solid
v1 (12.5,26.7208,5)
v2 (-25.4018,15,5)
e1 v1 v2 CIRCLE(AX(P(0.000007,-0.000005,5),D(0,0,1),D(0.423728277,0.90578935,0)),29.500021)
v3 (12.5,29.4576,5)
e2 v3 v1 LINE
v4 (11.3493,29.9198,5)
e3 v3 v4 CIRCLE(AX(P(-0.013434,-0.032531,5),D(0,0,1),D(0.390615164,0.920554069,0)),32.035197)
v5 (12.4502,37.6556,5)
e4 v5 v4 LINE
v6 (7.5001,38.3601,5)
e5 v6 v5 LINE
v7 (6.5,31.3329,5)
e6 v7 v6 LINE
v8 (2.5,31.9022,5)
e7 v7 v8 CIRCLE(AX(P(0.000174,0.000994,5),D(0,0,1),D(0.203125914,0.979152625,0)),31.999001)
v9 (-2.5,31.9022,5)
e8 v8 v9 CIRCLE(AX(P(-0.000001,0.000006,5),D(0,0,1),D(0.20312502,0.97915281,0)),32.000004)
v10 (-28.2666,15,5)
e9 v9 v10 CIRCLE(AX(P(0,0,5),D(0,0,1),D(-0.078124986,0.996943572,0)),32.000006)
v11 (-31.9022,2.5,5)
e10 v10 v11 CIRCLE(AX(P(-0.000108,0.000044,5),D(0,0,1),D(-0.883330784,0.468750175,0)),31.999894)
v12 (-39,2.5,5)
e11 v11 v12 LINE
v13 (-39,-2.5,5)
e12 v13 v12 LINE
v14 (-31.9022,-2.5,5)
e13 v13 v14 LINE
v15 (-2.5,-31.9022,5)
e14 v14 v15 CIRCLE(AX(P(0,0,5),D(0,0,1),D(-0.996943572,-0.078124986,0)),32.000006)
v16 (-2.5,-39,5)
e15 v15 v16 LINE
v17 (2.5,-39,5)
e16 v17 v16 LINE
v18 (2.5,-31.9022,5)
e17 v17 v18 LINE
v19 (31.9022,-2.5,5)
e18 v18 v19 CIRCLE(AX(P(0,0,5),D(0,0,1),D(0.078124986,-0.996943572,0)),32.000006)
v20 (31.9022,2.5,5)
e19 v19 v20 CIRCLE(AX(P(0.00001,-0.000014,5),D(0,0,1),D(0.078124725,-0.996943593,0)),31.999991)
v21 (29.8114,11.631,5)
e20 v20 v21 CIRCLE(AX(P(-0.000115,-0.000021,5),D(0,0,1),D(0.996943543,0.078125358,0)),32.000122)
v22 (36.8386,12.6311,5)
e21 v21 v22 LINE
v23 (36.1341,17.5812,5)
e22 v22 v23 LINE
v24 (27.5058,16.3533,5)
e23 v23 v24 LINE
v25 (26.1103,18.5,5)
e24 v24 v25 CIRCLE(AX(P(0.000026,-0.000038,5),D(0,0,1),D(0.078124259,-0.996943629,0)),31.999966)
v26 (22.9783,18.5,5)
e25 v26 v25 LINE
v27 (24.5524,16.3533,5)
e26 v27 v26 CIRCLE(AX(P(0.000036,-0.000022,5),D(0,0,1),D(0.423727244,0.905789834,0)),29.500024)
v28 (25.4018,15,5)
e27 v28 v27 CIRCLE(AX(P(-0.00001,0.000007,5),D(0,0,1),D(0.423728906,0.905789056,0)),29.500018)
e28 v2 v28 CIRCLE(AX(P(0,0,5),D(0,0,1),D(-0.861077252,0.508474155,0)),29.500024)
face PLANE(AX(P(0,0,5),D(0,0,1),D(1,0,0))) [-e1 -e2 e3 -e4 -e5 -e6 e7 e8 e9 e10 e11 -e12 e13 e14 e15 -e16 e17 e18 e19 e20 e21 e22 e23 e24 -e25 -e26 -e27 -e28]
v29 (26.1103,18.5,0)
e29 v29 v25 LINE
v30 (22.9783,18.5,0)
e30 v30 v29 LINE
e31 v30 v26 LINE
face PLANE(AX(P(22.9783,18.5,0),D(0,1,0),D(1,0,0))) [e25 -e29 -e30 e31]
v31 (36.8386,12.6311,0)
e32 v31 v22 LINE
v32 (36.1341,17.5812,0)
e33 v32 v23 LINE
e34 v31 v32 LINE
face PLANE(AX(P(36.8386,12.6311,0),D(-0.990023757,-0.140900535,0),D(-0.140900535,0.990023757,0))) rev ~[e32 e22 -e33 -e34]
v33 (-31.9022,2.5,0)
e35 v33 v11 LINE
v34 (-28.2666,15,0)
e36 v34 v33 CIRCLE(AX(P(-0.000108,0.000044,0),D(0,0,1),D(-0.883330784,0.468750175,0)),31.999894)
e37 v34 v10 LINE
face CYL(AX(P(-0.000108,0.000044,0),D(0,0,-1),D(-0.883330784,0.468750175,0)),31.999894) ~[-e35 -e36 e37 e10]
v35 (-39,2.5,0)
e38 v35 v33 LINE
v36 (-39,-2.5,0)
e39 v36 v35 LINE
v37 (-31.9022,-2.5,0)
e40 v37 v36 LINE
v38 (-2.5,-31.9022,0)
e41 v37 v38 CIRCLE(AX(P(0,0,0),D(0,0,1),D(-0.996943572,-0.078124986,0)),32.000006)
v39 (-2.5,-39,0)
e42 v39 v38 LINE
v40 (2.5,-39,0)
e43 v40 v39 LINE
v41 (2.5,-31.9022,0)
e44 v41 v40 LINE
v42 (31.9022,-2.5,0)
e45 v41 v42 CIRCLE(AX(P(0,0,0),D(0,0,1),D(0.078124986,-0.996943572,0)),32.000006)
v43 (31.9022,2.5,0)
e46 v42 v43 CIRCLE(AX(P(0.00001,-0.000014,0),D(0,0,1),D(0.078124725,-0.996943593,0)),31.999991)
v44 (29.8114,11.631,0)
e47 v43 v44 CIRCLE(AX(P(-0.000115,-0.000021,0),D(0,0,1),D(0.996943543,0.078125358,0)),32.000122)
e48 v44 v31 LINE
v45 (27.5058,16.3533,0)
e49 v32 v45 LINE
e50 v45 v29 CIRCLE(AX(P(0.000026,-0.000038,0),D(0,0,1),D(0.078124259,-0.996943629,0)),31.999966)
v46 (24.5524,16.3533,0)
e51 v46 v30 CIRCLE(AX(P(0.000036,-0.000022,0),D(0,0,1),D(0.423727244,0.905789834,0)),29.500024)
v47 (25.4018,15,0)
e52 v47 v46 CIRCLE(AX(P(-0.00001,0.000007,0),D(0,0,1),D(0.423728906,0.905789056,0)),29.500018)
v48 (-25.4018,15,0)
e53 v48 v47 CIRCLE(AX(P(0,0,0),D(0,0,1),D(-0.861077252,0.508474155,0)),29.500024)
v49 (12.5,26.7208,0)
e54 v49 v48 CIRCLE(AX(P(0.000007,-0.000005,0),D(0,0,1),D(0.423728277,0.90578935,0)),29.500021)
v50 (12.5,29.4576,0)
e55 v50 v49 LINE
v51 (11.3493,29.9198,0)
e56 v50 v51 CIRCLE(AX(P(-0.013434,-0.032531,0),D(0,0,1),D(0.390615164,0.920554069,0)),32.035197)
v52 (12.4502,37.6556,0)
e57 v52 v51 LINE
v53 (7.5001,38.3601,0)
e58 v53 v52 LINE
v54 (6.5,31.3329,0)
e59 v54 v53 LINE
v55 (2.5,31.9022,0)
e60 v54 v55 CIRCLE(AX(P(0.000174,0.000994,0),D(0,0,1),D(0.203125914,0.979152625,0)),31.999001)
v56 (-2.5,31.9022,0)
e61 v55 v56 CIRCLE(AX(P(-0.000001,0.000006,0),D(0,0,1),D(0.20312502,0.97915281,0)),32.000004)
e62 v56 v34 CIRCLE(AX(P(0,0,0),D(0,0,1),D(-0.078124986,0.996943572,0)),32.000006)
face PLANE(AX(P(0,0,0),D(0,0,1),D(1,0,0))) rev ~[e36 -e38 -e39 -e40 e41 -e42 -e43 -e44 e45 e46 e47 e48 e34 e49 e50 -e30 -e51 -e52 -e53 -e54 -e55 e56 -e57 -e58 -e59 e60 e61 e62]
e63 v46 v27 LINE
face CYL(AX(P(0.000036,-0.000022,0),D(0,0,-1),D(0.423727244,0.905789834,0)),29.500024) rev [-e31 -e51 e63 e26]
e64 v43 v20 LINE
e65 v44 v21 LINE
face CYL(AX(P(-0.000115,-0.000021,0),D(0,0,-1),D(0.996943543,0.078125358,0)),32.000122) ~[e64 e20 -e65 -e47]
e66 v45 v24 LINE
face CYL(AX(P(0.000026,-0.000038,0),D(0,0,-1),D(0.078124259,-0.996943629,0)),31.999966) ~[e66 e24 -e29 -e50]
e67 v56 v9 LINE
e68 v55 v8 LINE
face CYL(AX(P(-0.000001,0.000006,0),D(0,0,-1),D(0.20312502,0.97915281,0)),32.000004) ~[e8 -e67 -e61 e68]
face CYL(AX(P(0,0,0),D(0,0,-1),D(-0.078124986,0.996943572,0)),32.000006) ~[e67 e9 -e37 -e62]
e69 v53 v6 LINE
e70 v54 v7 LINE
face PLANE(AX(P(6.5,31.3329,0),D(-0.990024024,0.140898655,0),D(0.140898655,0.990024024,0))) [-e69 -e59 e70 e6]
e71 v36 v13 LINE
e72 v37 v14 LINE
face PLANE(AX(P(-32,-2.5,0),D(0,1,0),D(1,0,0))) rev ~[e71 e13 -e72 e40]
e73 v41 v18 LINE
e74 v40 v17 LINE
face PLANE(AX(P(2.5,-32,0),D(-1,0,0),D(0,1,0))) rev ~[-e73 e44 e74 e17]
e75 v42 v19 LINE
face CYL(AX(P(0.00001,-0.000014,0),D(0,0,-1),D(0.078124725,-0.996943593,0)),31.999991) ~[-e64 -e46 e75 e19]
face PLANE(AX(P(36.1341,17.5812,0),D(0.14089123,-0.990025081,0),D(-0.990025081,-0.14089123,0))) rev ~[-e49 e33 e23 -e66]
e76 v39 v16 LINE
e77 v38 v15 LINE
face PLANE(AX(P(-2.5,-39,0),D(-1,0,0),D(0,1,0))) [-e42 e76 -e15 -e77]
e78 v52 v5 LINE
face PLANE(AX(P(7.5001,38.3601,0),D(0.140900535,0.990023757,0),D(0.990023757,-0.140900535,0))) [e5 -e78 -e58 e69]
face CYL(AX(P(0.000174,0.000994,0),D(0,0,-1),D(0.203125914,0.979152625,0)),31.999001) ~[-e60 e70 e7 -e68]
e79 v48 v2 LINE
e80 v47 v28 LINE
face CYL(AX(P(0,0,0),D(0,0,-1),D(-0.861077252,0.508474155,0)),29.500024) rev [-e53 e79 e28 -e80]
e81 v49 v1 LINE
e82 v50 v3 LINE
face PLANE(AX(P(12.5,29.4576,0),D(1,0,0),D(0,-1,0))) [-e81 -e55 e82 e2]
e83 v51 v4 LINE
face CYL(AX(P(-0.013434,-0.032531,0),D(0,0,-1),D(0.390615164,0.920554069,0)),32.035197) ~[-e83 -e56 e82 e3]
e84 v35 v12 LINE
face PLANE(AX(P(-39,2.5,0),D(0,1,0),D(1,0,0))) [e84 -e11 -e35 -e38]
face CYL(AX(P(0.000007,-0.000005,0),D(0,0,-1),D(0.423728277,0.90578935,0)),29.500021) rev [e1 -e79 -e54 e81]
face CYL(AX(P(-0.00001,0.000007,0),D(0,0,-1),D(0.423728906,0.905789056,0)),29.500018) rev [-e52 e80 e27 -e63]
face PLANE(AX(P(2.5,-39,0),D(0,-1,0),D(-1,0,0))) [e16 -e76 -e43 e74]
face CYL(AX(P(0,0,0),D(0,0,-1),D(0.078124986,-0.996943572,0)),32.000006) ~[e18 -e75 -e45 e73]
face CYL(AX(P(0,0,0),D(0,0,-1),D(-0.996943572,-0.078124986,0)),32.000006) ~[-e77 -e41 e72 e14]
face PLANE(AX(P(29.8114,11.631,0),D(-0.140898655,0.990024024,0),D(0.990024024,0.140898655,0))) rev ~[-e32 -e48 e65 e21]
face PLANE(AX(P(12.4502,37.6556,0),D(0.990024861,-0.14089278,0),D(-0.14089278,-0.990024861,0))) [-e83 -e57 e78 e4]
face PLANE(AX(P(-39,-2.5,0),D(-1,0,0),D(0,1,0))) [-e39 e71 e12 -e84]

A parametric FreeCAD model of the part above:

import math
import FreeCAD as App
import Part
import Sketcher

V = App.Vector
Q = App.Units.Quantity

doc = App.newDocument("Part")
body = doc.addObject("PartDesign::Body", "Body")

sketch1 = doc.addObject("Sketcher::SketchObject", "Sketch")
body.addObject(sketch1)
sketch1.AttachmentSupport = (doc.XY_Plane, [""])
sketch1.MapMode = "FlatFace"
sketch1.addGeometry([
    Part.ArcOfCircle(Part.Circle(V(0, 0, 0), V(0, 0, 1), 29.5), math.radians(149), math.radians(391)),
    Part.ArcOfCircle(Part.Circle(V(0, 0, 0), V(0, 0, 1), 29.5), math.radians(65), math.radians(149)),
    Part.LineSegment(V(12.5, 26.7, 0), V(12.5, 29.5, 0)),
    Part.ArcOfCircle(Part.Circle(V(0, 0, 0), V(0, 0, 1), 32), math.radians(67.01), math.radians(69.23)),
    Part.LineSegment(V(11.3, 29.9, 0), V(12.5, 37.7, 0)),
    Part.LineSegment(V(12.5, 37.7, 0), V(7.5, 38.4, 0)),
    Part.LineSegment(V(7.5, 38.4, 0), V(6.5, 31.3, 0)),
    Part.ArcOfCircle(Part.Circle(V(0, 0, 0), V(0, 0, 1), 32), math.radians(78.28), math.radians(85.52)),
    Part.ArcOfCircle(Part.Circle(V(0, 0, 0), V(0, 0, 1), 32), math.radians(85.52), math.radians(94.48)),
    Part.ArcOfCircle(Part.Circle(V(0, 0, 0), V(0, 0, 1), 32), math.radians(94), math.radians(152)),
    Part.ArcOfCircle(Part.Circle(V(0, 0, 0), V(0, 0, 1), 32), math.radians(152), math.radians(176)),
    Part.LineSegment(V(-31.9, 2.5, 0), V(-39, 2.5, 0)),
    Part.LineSegment(V(-39, 2.5, 0), V(-39, -2.5, 0)),
    Part.LineSegment(V(-39, -2.5, 0), V(-31.9, -2.5, 0)),
    Part.ArcOfCircle(Part.Circle(V(0, 0, 0), V(0, 0, 1), 32), math.radians(-176), math.radians(-94)),
    Part.LineSegment(V(-2.5, -31.9, 0), V(-2.5, -39, 0)),
    Part.LineSegment(V(-2.5, -39, 0), V(2.5, -39, 0)),
    Part.LineSegment(V(2.5, -39, 0), V(2.5, -31.9, 0)),
    Part.ArcOfCircle(Part.Circle(V(0, 0, 0), V(0, 0, 1), 32), math.radians(-86), math.radians(-4)),
    Part.ArcOfCircle(Part.Circle(V(0, 0, 0), V(0, 0, 1), 32), math.radians(-4.48), math.radians(4.48)),
    Part.ArcOfCircle(Part.Circle(V(0, 0, 0), V(0, 0, 1), 32), math.radians(4.48), math.radians(21.31)),
    Part.LineSegment(V(29.8, 11.6, 0), V(36.8, 12.6, 0)),
    Part.LineSegment(V(36.8, 12.6, 0), V(36.1, 17.6, 0)),
    Part.LineSegment(V(36.1, 17.6, 0), V(27.5, 16.4, 0)),
    Part.ArcOfCircle(Part.Circle(V(0, 0, 0), V(0, 0, 1), 32), math.radians(30.73), math.radians(35.32)),
    Part.LineSegment(V(26.1, 18.5, 0), V(23, 18.5, 0)),
    Part.ArcOfCircle(Part.Circle(V(0, 0, 0), V(0, 0, 1), 29.5), math.radians(33.67), math.radians(38.84)),
    Part.ArcOfCircle(Part.Circle(V(0, 0, 0), V(0, 0, 1), 29.5), math.radians(30.56), math.radians(33.67)),
], False)
sketch1.addConstraint([
    Sketcher.Constraint("Tangent", 0, 1, 1, 2),
    Sketcher.Constraint("Coincident", 1, 1, 2, 1),
    Sketcher.Constraint("Coincident", 2, 2, 3, 1),
    Sketcher.Constraint("Coincident", 3, 2, 4, 1),
    Sketcher.Constraint("Coincident", 4, 2, 5, 1),
    Sketcher.Constraint("Coincident", 5, 2, 6, 1),
    Sketcher.Constraint("Coincident", 6, 2, 7, 1),
    Sketcher.Constraint("Tangent", 7, 2, 8, 1),
    Sketcher.Constraint("Tangent", 8, 2, 9, 1),
    Sketcher.Constraint("Tangent", 9, 2, 10, 1),
    Sketcher.Constraint("Coincident", 10, 2, 11, 1),
    Sketcher.Constraint("Coincident", 11, 2, 12, 1),
    Sketcher.Constraint("Coincident", 12, 2, 13, 1),
    Sketcher.Constraint("Coincident", 13, 2, 14, 1),
    Sketcher.Constraint("Coincident", 14, 2, 15, 1),
    Sketcher.Constraint("Coincident", 15, 2, 16, 1),
    Sketcher.Constraint("Coincident", 16, 2, 17, 1),
    Sketcher.Constraint("Coincident", 17, 2, 18, 1),
    Sketcher.Constraint("Tangent", 18, 2, 19, 1),
    Sketcher.Constraint("Tangent", 19, 2, 20, 1),
    Sketcher.Constraint("Coincident", 20, 2, 21, 1),
    Sketcher.Constraint("Coincident", 21, 2, 22, 1),
    Sketcher.Constraint("Coincident", 22, 2, 23, 1),
    Sketcher.Constraint("Coincident", 23, 2, 24, 1),
    Sketcher.Constraint("Coincident", 24, 2, 25, 1),
    Sketcher.Constraint("Coincident", 25, 2, 26, 2),
    Sketcher.Constraint("Tangent", 26, 1, 27, 2),
    Sketcher.Constraint("Tangent", 27, 1, 0, 2),
    Sketcher.Constraint("Vertical", 2),
    Sketcher.Constraint("Horizontal", 11),
    Sketcher.Constraint("Vertical", 12),
    Sketcher.Constraint("Horizontal", 13),
    Sketcher.Constraint("Vertical", 15),
    Sketcher.Constraint("Horizontal", 16),
    Sketcher.Constraint("Vertical", 17),
    Sketcher.Constraint("Horizontal", 25),
    Sketcher.Constraint("Coincident", 0, 3, -1, 1),
    Sketcher.Constraint("Coincident", 8, 3, -1, 1),
    Sketcher.Constraint("Coincident", 10, 3, -1, 1),
    Sketcher.Constraint("Coincident", 14, 3, -1, 1),
    Sketcher.Constraint("Coincident", 18, 3, -1, 1),
    Sketcher.Constraint("Coincident", 20, 3, -1, 1),
    Sketcher.Constraint("Coincident", 24, 3, -1, 1),
    Sketcher.Constraint("Coincident", 26, 3, -1, 1),
    Sketcher.Constraint("Equal", 0, 1),
    Sketcher.Constraint("Equal", 10, 14),
    Sketcher.Constraint("Equal", 14, 18),
    Sketcher.Constraint("Equal", 20, 24),
    Sketcher.Constraint("PointOnObject", 7, 3, -2),
    Sketcher.Constraint("Perpendicular", 4, 5),
    Sketcher.Constraint("Perpendicular", 5, 6),
    Sketcher.Constraint("Perpendicular", 21, 22),
    Sketcher.Constraint("Perpendicular", 22, 23),
    Sketcher.Constraint("Horizontal", 7, 2, 8, 2),
    Sketcher.Constraint("Horizontal", 0, 1, 9, 2),
    Sketcher.Constraint("Horizontal", 14, 2, 17, 2),
    Sketcher.Constraint("Horizontal", 13, 2, 18, 2),
    Sketcher.Constraint("Horizontal", 11, 2, 19, 2),
    Sketcher.Constraint("Horizontal", 23, 2, 26, 1),
    Sketcher.Constraint("Horizontal", 9, 2, 27, 1),
    Sketcher.Constraint("Vertical", 10, 2, 13, 2),
    Sketcher.Constraint("Vertical", 8, 2, 14, 2),
    Sketcher.Constraint("Equal", 16, 12),
    Sketcher.Constraint("Equal", 13, 15),
    Sketcher.Constraint("Equal", 6, 21),
    Sketcher.Constraint("Equal", 5, 22),
    Sketcher.Constraint("DistanceX", 16, 1, 16, 2, Q("5 mm")),
    Sketcher.Constraint("Distance", 5, Q("5 mm")),
    Sketcher.Constraint("Angle", 4, Q("81.9005 deg")),
    Sketcher.Constraint("Angle", 21, Q("8.0999 deg")),
    Sketcher.Constraint("Radius", 8, Q("32 mm")),
    Sketcher.Constraint("DistanceX", 5, 2, 2, 2, Q("5 mm")),
    Sketcher.Constraint("DistanceX", 7, 2, 5, 2, Q("5 mm")),
    Sketcher.Constraint("Radius", 0, Q("29.5 mm")),
    Sketcher.Constraint("Distance", 6, Q("7.098 mm")),
    Sketcher.Constraint("DistanceX", 11, 2, 11, 1, Q("7.0978 mm")),
    Sketcher.Constraint("DistanceY", -1, 1, 0, 1, Q("15 mm")),
    Sketcher.Constraint("DistanceY", -1, 1, 24, 2, Q("18.5 mm")),
    Sketcher.Constraint("Radius", 3, Q("32.0352 mm")),
    Sketcher.Constraint("DistanceY", 2, 1, 2, 2, Q("2.7368 mm")),
    Sketcher.Constraint("DistanceY", -1, 1, 20, 2, Q("11.631 mm")),
    Sketcher.Constraint("DistanceY", 1, 1, 3, 2, Q("3.199 mm")),
])
pad1 = doc.addObject("PartDesign::Pad", "Pad")
body.addObject(pad1)
pad1.Profile = sketch1
pad1.Length = 5

doc.recompute()
